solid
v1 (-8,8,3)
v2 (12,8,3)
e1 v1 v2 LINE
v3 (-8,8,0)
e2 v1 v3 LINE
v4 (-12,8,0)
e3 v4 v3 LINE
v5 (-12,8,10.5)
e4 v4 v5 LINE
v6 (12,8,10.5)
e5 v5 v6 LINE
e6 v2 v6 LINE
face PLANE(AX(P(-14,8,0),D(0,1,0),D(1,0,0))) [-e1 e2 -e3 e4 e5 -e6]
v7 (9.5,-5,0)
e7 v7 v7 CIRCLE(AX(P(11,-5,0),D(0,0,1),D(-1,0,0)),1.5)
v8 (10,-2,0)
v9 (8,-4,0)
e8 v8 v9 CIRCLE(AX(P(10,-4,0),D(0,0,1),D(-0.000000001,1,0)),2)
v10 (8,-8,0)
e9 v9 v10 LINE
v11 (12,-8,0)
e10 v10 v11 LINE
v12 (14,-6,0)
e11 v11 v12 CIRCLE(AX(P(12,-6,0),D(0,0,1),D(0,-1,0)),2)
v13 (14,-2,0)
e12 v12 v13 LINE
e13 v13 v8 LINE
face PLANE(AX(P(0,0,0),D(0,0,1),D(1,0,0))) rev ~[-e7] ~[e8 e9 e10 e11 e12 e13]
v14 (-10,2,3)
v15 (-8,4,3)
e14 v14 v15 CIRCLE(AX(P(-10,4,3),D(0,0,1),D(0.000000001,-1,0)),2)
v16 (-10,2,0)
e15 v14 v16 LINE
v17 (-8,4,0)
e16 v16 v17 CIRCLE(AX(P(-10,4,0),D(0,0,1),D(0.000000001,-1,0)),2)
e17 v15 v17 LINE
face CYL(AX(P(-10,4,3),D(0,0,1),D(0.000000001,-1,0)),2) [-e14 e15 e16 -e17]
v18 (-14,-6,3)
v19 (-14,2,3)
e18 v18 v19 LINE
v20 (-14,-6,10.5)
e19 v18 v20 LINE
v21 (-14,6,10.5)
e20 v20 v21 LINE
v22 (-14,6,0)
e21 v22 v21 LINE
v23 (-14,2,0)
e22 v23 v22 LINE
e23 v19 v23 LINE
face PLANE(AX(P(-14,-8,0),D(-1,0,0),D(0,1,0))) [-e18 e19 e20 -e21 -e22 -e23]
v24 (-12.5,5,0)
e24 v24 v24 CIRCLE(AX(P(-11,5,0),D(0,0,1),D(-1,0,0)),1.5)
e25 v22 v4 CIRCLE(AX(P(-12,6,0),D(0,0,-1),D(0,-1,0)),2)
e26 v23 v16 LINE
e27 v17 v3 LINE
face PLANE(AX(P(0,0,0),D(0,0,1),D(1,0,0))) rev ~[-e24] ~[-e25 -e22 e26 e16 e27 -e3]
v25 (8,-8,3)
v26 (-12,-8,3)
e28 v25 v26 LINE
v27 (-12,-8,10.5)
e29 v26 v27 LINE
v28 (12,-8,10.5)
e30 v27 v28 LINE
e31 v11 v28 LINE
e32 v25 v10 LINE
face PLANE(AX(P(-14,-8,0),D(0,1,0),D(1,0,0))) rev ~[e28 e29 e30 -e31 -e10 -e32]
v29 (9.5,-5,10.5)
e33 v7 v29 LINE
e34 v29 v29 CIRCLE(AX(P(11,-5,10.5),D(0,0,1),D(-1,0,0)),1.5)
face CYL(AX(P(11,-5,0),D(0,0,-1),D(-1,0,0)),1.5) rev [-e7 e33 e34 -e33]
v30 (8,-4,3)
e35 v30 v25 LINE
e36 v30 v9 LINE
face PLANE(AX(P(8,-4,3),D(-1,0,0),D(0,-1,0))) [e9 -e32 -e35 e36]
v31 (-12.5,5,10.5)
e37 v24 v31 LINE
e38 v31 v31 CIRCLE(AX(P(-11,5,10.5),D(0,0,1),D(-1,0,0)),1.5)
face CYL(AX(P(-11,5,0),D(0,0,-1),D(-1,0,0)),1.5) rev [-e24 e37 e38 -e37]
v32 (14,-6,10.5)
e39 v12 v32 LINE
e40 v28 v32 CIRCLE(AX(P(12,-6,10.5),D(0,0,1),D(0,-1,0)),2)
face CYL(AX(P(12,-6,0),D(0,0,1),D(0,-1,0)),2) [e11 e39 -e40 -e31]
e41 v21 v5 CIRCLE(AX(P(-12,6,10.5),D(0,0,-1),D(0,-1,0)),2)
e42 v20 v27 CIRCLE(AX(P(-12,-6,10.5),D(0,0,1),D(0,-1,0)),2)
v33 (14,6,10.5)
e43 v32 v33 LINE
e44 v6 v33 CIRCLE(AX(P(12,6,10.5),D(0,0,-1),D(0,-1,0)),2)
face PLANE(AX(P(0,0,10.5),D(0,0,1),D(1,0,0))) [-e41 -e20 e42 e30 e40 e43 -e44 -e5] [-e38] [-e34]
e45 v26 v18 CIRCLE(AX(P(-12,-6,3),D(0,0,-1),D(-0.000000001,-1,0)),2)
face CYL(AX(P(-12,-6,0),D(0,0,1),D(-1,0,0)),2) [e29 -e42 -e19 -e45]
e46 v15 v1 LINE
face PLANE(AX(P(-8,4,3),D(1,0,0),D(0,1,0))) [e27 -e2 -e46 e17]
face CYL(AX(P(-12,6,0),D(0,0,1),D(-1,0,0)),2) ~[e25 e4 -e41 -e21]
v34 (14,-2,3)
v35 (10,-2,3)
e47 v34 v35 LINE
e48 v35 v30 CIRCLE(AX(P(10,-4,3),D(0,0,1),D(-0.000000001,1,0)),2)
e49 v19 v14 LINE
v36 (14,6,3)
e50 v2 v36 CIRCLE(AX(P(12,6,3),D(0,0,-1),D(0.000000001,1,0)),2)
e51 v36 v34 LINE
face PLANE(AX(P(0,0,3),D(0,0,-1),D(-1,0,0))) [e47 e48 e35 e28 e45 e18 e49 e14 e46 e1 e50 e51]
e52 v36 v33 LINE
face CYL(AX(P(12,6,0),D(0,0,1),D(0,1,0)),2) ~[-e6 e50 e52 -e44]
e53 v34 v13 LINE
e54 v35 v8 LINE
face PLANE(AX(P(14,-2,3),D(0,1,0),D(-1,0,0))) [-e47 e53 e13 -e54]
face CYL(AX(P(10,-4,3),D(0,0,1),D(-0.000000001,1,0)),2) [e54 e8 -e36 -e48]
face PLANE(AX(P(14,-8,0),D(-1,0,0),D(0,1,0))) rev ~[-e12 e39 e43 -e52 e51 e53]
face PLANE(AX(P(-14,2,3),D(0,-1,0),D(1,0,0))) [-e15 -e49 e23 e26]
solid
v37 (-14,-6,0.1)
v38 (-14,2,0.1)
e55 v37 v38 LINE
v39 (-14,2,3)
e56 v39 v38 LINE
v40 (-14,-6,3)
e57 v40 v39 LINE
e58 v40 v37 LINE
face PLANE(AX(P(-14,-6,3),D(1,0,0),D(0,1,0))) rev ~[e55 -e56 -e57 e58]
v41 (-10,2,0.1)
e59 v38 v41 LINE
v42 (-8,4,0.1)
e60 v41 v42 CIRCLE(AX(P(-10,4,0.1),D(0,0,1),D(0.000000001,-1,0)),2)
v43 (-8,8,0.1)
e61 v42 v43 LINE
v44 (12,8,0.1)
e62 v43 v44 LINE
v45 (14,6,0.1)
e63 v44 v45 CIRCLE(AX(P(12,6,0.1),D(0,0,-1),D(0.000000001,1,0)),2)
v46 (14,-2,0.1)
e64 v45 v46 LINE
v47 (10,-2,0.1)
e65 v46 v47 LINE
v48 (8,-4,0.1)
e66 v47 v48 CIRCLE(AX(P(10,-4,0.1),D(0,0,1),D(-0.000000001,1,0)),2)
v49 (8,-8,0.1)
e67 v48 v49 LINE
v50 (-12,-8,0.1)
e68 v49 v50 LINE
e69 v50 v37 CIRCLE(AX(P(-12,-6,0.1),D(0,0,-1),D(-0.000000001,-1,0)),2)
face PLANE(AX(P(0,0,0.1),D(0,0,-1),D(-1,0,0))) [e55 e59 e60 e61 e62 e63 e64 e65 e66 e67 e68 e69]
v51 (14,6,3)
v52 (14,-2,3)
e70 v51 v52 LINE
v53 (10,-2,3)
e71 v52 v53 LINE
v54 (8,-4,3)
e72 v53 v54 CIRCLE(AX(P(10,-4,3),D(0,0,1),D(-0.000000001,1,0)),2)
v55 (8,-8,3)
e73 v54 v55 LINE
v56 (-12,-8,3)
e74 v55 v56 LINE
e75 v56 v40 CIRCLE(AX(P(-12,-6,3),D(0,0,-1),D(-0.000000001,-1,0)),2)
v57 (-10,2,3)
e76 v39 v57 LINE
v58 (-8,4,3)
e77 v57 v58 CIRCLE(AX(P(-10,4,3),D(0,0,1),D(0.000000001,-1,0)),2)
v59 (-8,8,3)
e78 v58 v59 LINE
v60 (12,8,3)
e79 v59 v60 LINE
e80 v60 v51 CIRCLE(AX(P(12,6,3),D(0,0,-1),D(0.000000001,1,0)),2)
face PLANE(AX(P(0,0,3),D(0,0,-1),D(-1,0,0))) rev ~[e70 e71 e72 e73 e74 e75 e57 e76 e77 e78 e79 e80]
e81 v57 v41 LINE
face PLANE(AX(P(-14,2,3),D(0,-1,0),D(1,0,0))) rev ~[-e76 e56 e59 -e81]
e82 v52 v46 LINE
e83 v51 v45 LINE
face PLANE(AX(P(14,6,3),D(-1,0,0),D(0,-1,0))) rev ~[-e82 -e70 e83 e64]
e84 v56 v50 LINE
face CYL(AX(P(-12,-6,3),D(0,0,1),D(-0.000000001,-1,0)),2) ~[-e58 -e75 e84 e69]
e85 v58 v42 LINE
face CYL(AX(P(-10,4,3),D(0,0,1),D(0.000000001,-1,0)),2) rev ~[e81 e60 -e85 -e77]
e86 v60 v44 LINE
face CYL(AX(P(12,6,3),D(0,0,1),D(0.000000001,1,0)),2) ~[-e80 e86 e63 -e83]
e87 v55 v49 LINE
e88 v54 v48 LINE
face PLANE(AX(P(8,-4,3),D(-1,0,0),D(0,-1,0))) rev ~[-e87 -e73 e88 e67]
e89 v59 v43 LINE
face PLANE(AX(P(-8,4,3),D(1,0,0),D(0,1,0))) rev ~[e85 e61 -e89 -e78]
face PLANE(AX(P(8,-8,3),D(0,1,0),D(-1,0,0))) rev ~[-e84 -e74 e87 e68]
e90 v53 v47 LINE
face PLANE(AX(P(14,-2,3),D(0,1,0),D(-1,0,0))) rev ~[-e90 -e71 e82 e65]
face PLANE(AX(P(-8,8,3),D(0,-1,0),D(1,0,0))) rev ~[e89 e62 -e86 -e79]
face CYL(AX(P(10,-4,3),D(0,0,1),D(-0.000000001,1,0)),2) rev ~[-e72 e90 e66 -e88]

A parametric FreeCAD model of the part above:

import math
import FreeCAD as App
import Part
import Sketcher

V = App.Vector


def edges_at(feature, points):
    """Names of the edges that pass closest to the given points."""
    edges = feature.Shape.Edges
    near = lambda p: min(range(len(edges)), key=lambda i: edges[i].distToShape(Part.Vertex(*p))[0])
    return sorted({f"Edge{near(p) + 1}" for p in points})


def add_polygon(sketch, points):
    """Adds a closed chain of lines whose ends are joined by coincident constraints."""
    first, n = sketch.GeometryCount, len(points)
    for a, b in zip(points, points[1:] + points[:1]):
        sketch.addGeometry(Part.LineSegment(App.Vector(*a, 0), App.Vector(*b, 0)), False)
    for i in range(n):
        sketch.addConstraint(Sketcher.Constraint("Coincident", first + i, 2, first + (i + 1) % n, 1))

doc = App.newDocument("Part")
body = doc.addObject("PartDesign::Body", "Body")

# Sketch on XY plane
sketch1 = body.newObject("Sketcher::SketchObject", "Sketch")
sketch1.AttachmentSupport = (doc.getObject("XY_Plane"), [""])
sketch1.MapMode = "FlatFace"
add_polygon(sketch1, [(-14, 8), (-14, -8), (14, -8), (14, 8)])  # lines 0-3
sketch1.addGeometry(Part.Circle(V(11, -5, 0), V(0, 0, 1), 1.5), False)  # 4
sketch1.addGeometry(Part.Circle(V(-11, 5, 0), V(0, 0, 1), 1.5), False)  # 5
sketch1.addConstraint([
    Sketcher.Constraint("Vertical", 0),
    Sketcher.Constraint("Horizontal", 1),
    Sketcher.Constraint("Vertical", 2),
    Sketcher.Constraint("Horizontal", 3),
    Sketcher.Constraint("Equal", 4, 5),
    Sketcher.Constraint("Symmetric", 4, 3, 5, 3, -1, 1),
    Sketcher.Constraint("Symmetric", 0, 2, 2, 2, -1, 1),
    Sketcher.Constraint("Diameter", 4, 3.0),
    Sketcher.Constraint("DistanceX", 1, 1, 1, 2, 28.0),
    Sketcher.Constraint("DistanceY", 0, 2, 0, 1, 16.0),
    Sketcher.Constraint("DistanceX", -1, 1, 4, 3, 11.0),
    Sketcher.Constraint("DistanceY", 4, 3, -1, 1, 5.0),
])
pad1 = body.newObject("PartDesign::Pad", "Pad")
pad1.Profile = sketch1
pad1.Length = 10.5
doc.recompute()

fillet = body.newObject("PartDesign::Fillet", "Fillet")
fillet.Base = (pad1, edges_at(pad1, [
    (14, -8, 5.25),
    (-14, -8, 5.25),
    (-14, 8, 5.25),
    (14, 8, 5.25),
]))
fillet.Radius = 2

# Sketch on XY plane
sketch2 = body.newObject("Sketcher::SketchObject", "Sketch001")
sketch2.AttachmentSupport = (doc.getObject("XY_Plane"), [""])
sketch2.MapMode = "FlatFace"
sketch2.AttachmentOffset = App.Placement(V(0, 0, 3), App.Rotation())
sketch2.addGeometry([
    Part.LineSegment(V(14, -2, 0), V(10, -2, 0)),  # 0
    Part.ArcOfCircle(Part.Circle(V(10, -4, 0), V(0, 0, 1), 2), math.radians(90), math.radians(180)),  # 1
    Part.LineSegment(V(8, -4, 0), V(8, -8, 0)),  # 2
    Part.LineSegment(V(8, -8, 0), V(-12, -8, 0)),  # 3
    Part.ArcOfCircle(Part.Circle(V(-12, -6, 0), V(0, 0, 1), 2), math.radians(-180), math.radians(-90)),  # 4
    Part.LineSegment(V(-14, -6, 0), V(-14, 2, 0)),  # 5
    Part.LineSegment(V(-14, 2, 0), V(-10, 2, 0)),  # 6
    Part.ArcOfCircle(Part.Circle(V(-10, 4, 0), V(0, 0, 1), 2), math.radians(-90), math.radians(0)),  # 7
    Part.LineSegment(V(-8, 4, 0), V(-8, 8, 0)),  # 8
    Part.LineSegment(V(-8, 8, 0), V(12, 8, 0)),  # 9
    Part.ArcOfCircle(Part.Circle(V(12, 6, 0), V(0, 0, 1), 2), math.radians(0), math.radians(90)),  # 10
    Part.LineSegment(V(14, 6, 0), V(14, -2, 0)),  # 11
], False)
sketch2.addConstraint([
    Sketcher.Constraint("Tangent", 0, 2, 1, 1),
    Sketcher.Constraint("Tangent", 1, 2, 2, 1),
    Sketcher.Constraint("Coincident", 2, 2, 3, 1),
    Sketcher.Constraint("Tangent", 3, 2, 4, 2),
    Sketcher.Constraint("Tangent", 4, 1, 5, 1),
    Sketcher.Constraint("Coincident", 5, 2, 6, 1),
    Sketcher.Constraint("Tangent", 6, 2, 7, 1),
    Sketcher.Constraint("Tangent", 7, 2, 8, 1),
    Sketcher.Constraint("Coincident", 8, 2, 9, 1),
    Sketcher.Constraint("Tangent", 9, 2, 10, 2),
    Sketcher.Constraint("Tangent", 10, 1, 11, 1),
    Sketcher.Constraint("Coincident", 11, 2, 0, 1),
    Sketcher.Constraint("Horizontal", 0),
    Sketcher.Constraint("Vertical", 2),
    Sketcher.Constraint("Horizontal", 3),
    Sketcher.Constraint("Vertical", 5),
    Sketcher.Constraint("Horizontal", 6),
    Sketcher.Constraint("Vertical", 8),
    Sketcher.Constraint("Horizontal", 9),
    Sketcher.Constraint("Vertical", 11),
    Sketcher.Constraint("Equal", 1, 4),
    Sketcher.Constraint("Equal", 4, 7),
    Sketcher.Constraint("Equal", 7, 10),
    Sketcher.Constraint("Symmetric", 1, 3, 7, 3, -1, 1),
    Sketcher.Constraint("Symmetric", 4, 3, 10, 3, -1, 1),
    Sketcher.Constraint("Equal", 6, 2),
    Sketcher.Constraint("Radius", 1, 2.0),
    Sketcher.Constraint("DistanceX", 0, 2, 0, 1, 4.0),
    Sketcher.Constraint("DistanceX", 3, 2, 3, 1, 20.0),
    Sketcher.Constraint("DistanceY", 5, 1, 5, 2, 8.0),
])
pocket1 = body.newObject("PartDesign::Pocket", "Pocket")
pocket1.Profile = sketch2
pocket1.Length = 3
body2 = doc.addObject("PartDesign::Body", "Body001")

# Sketch on XY plane
sketch3 = body2.newObject("Sketcher::SketchObject", "Sketch002")
sketch3.AttachmentSupport = (doc.getObject("XY_Plane001"), [""])
sketch3.MapMode = "FlatFace"
sketch3.AttachmentOffset = App.Placement(V(0, 0, 3), App.Rotation())
sketch3.addGeometry([
    Part.LineSegment(V(14, 6, 0), V(14, -2, 0)),  # 0
    Part.LineSegment(V(14, -2, 0), V(10, -2, 0)),  # 1
    Part.ArcOfCircle(Part.Circle(V(10, -4, 0), V(0, 0, 1), 2), math.radians(90), math.radians(180)),  # 2
    Part.LineSegment(V(8, -4, 0), V(8, -8, 0)),  # 3
    Part.LineSegment(V(8, -8, 0), V(-12, -8, 0)),  # 4
    Part.ArcOfCircle(Part.Circle(V(-12, -6, 0), V(0, 0, 1), 2), math.radians(-180), math.radians(-90)),  # 5
    Part.LineSegment(V(-14, -6, 0), V(-14, 2, 0)),  # 6
    Part.LineSegment(V(-14, 2, 0), V(-10, 2, 0)),  # 7
    Part.ArcOfCircle(Part.Circle(V(-10, 4, 0), V(0, 0, 1), 2), math.radians(-90), math.radians(0)),  # 8
    Part.LineSegment(V(-8, 4, 0), V(-8, 8, 0)),  # 9
    Part.LineSegment(V(-8, 8, 0), V(12, 8, 0)),  # 10
    Part.ArcOfCircle(Part.Circle(V(12, 6, 0), V(0, 0, 1), 2), math.radians(0), math.radians(90)),  # 11
], False)
sketch3.addConstraint([
    Sketcher.Constraint("Coincident", 0, 2, 1, 1),
    Sketcher.Constraint("Tangent", 1, 2, 2, 1),
    Sketcher.Constraint("Tangent", 2, 2, 3, 1),
    Sketcher.Constraint("Coincident", 3, 2, 4, 1),
    Sketcher.Constraint("Tangent", 4, 2, 5, 2),
    Sketcher.Constraint("Tangent", 5, 1, 6, 1),
    Sketcher.Constraint("Coincident", 6, 2, 7, 1),
    Sketcher.Constraint("Tangent", 7, 2, 8, 1),
    Sketcher.Constraint("Tangent", 8, 2, 9, 1),
    Sketcher.Constraint("Coincident", 9, 2, 10, 1),
    Sketcher.Constraint("Tangent", 10, 2, 11, 2),
    Sketcher.Constraint("Tangent", 11, 1, 0, 1),
    Sketcher.Constraint("Vertical", 0),
    Sketcher.Constraint("Horizontal", 1),
    Sketcher.Constraint("Vertical", 3),
    Sketcher.Constraint("Horizontal", 4),
    Sketcher.Constraint("Vertical", 6),
    Sketcher.Constraint("Horizontal", 7),
    Sketcher.Constraint("Vertical", 9),
    Sketcher.Constraint("Horizontal", 10),
    Sketcher.Constraint("Equal", 2, 5),
    Sketcher.Constraint("Equal", 5, 8),
    Sketcher.Constraint("Equal", 8, 11),
    Sketcher.Constraint("Symmetric", 2, 3, 8, 3, -1, 1),
    Sketcher.Constraint("Symmetric", 5, 3, 11, 3, -1, 1),
    Sketcher.Constraint("Equal", 7, 3),
    Sketcher.Constraint("Radius", 2, 2.0),
    Sketcher.Constraint("DistanceX", 1, 2, 1, 1, 4.0),
    Sketcher.Constraint("DistanceX", 4, 2, 4, 1, 20.0),
    Sketcher.Constraint("DistanceY", 0, 2, 0, 1, 8.0),
])
pad2 = body2.newObject("PartDesign::Pad", "Pad001")
pad2.Profile = sketch3
pad2.Length = 2.9
pad2.Reversed = True

doc.recompute()
